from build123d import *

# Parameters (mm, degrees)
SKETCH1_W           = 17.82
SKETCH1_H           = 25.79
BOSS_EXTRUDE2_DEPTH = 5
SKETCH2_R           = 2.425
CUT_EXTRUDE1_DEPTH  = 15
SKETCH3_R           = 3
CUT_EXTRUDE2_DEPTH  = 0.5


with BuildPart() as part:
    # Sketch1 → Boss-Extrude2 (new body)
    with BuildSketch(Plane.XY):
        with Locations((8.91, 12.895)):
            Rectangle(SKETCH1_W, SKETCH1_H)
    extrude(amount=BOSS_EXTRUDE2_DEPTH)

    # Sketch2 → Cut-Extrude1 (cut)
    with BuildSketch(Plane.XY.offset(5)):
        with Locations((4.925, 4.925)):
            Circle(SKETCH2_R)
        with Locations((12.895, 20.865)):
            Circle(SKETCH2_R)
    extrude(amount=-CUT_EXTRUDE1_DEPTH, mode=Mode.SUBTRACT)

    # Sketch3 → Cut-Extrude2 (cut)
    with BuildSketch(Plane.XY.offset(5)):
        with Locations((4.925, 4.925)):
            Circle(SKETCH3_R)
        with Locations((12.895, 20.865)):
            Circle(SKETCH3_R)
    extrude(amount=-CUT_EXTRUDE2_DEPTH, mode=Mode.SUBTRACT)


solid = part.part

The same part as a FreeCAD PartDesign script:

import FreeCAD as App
import Part
import Sketcher
from FreeCAD import Vector

doc = App.newDocument("Part")
body = doc.addObject("PartDesign::Body", "Body")

sketch1 = body.newObject("Sketcher::SketchObject", "Sketch")
sketch1.AttachmentSupport = (doc.getObject("XY_Plane"), [""])
sketch1.MapMode = "FlatFace"
sketch1.addGeometry([
    Part.LineSegment(Vector(0, 26, 0), Vector(0, 0, 0)),
    Part.LineSegment(Vector(0, 0, 0), Vector(18, 0, 0)),
    Part.LineSegment(Vector(18, 0, 0), Vector(18, 26, 0)),
    Part.LineSegment(Vector(18, 26, 0), Vector(0, 26, 0)),
], False)
sketch1.addConstraint([
    Sketcher.Constraint("Coincident", 0, 2, 1, 1),
    Sketcher.Constraint("Coincident", 1, 2, 2, 1),
    Sketcher.Constraint("Coincident", 2, 2, 3, 1),
    Sketcher.Constraint("Coincident", 3, 2, 0, 1),
    Sketcher.Constraint("Vertical", 0),
    Sketcher.Constraint("Horizontal", 1),
    Sketcher.Constraint("Vertical", 2),
    Sketcher.Constraint("Horizontal", 3),
    Sketcher.Constraint("Coincident", 0, 2, -1, 1),
    Sketcher.Constraint("DistanceX", 1, 1, 1, 2, 17.82),
    Sketcher.Constraint("DistanceY", 0, 2, 0, 1, 25.79),
])
pad1 = body.newObject("PartDesign::Pad", "Pad")
pad1.Profile = sketch1
pad1.Length = 5

sketch2 = body.newObject("Sketcher::SketchObject", "Sketch001")
sketch2.AttachmentSupport = (doc.getObject("XY_Plane"), [""])
sketch2.MapMode = "FlatFace"
sketch2.AttachmentOffset = App.Placement(Vector(0, 0, 5), App.Rotation())
sketch2.addGeometry([
    Part.Circle(Vector(4.9, 4.9, 0), Vector(0, 0, 1), 2.4),
    Part.Circle(Vector(12.9, 20.9, 0), Vector(0, 0, 1), 2.4),
], False)
sketch2.addConstraint([
    Sketcher.Constraint("Equal", 0, 1),
    Sketcher.Constraint("Diameter", 0, 4.85),
    Sketcher.Constraint("DistanceX", 0, 3, 1, 3, 7.97),
    Sketcher.Constraint("DistanceY", 0, 3, 1, 3, 15.94),
    Sketcher.Constraint("DistanceX", -1, 1, 0, 3, 4.925),
    Sketcher.Constraint("DistanceY", -1, 1, 0, 3, 4.925),
])
pocket1 = body.newObject("PartDesign::Pocket", "Pocket")
pocket1.Profile = sketch2
pocket1.Length = 15

sketch3 = body.newObject("Sketcher::SketchObject", "Sketch002")
sketch3.AttachmentSupport = (doc.getObject("XY_Plane"), [""])
sketch3.MapMode = "FlatFace"
sketch3.AttachmentOffset = App.Placement(Vector(0, 0, 5), App.Rotation())
sketch3.addGeometry([
    Part.Circle(Vector(4.9, 4.9, 0), Vector(0, 0, 1), 3),
    Part.Circle(Vector(12.9, 20.9, 0), Vector(0, 0, 1), 3),
], False)
sketch3.addConstraint([
    Sketcher.Constraint("Equal", 0, 1),
    Sketcher.Constraint("Diameter", 0, 6.0),
    Sketcher.Constraint("DistanceX", 0, 3, 1, 3, 7.97),
    Sketcher.Constraint("DistanceY", 0, 3, 1, 3, 15.94),
    Sketcher.Constraint("DistanceX", -1, 1, 0, 3, 4.925),
    Sketcher.Constraint("DistanceY", -1, 1, 0, 3, 4.925),
])
pocket2 = body.newObject("PartDesign::Pocket", "Pocket001")
pocket2.Profile = sketch3
pocket2.Length = 0.5

doc.recompute()
